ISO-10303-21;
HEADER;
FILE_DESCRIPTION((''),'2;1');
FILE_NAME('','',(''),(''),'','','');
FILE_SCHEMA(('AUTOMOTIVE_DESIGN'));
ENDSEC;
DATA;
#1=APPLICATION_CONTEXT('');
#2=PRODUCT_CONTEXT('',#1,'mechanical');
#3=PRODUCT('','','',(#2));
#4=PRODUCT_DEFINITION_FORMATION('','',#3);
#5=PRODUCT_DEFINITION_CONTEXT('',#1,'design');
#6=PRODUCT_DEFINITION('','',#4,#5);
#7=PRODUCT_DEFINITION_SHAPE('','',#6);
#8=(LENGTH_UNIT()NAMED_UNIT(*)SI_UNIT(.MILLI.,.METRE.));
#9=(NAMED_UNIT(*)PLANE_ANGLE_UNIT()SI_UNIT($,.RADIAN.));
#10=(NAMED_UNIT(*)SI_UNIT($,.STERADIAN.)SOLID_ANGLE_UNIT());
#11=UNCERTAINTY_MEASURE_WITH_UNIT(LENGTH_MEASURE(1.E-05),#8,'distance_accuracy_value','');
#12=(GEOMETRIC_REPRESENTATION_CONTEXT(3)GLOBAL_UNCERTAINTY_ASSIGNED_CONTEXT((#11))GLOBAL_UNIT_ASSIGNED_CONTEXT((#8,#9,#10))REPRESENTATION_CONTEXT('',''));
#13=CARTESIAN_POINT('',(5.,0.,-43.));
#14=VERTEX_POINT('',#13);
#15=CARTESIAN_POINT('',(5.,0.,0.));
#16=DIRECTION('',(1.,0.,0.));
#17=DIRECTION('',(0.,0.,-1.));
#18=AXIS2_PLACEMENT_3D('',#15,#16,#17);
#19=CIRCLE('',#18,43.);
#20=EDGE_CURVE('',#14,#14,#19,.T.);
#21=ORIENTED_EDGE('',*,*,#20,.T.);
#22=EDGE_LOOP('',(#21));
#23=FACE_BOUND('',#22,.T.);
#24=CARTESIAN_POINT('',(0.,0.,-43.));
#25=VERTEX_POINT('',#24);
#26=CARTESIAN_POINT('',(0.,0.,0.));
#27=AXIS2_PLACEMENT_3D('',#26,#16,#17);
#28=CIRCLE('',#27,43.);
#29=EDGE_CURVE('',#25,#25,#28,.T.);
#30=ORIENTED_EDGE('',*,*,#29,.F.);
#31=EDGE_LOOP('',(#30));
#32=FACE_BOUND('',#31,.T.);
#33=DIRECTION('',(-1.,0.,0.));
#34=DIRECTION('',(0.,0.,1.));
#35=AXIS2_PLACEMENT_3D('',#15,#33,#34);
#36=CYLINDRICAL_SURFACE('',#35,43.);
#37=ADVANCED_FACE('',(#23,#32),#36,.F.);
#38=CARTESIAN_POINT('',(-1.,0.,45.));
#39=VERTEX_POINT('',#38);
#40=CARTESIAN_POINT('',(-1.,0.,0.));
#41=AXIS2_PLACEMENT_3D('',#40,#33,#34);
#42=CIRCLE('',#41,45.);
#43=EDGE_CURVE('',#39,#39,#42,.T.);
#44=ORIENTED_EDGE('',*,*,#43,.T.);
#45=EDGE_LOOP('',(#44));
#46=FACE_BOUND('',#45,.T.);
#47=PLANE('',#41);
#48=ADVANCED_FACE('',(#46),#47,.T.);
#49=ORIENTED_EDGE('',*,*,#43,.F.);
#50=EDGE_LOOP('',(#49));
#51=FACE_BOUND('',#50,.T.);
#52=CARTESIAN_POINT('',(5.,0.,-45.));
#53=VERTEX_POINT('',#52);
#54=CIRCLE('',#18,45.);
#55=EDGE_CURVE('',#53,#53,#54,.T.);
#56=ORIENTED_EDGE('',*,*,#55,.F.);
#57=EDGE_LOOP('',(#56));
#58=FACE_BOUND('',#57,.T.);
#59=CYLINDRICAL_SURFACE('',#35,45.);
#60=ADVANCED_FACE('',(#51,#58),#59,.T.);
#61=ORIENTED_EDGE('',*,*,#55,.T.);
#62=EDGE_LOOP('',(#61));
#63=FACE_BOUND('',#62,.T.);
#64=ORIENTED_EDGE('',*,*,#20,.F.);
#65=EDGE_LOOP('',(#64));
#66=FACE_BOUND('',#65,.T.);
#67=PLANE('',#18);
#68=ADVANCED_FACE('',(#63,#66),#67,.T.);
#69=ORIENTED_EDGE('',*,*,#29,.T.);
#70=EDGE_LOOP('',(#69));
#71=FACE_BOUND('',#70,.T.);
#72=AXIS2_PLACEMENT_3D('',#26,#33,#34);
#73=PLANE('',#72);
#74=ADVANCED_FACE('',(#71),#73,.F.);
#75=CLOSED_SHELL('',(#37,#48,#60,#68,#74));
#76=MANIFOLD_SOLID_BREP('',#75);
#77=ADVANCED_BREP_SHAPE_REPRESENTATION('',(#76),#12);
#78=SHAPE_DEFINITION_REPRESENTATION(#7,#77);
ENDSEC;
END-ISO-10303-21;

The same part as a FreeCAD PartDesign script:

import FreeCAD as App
import Part
import Sketcher

doc = App.newDocument("Part")
body = doc.addObject("PartDesign::Body", "Body")

# Sketch on YZ plane
sketch1 = doc.addObject("Sketcher::SketchObject", "Sketch")
body.addObject(sketch1)
sketch1.AttachmentSupport = (doc.YZ_Plane, [""])
sketch1.MapMode = "FlatFace"
sketch1.addGeometry(Part.Circle(App.Vector(0, 0, 0), App.Vector(0, 0, 1), 45), False)
sketch1.addGeometry(Part.Circle(App.Vector(0, 0, 0), App.Vector(0, 0, 1), 43), False)
sketch1.addConstraint(Sketcher.Constraint("Coincident", 0, 3, -1, 1))
sketch1.addConstraint(Sketcher.Constraint("Coincident", 1, 3, -1, 1))
sketch1.addConstraint(Sketcher.Constraint("Diameter", 0, 90.0))
sketch1.addConstraint(Sketcher.Constraint("Diameter", 1, 86.0))
pad1 = doc.addObject("PartDesign::Pad", "Pad")
body.addObject(pad1)
pad1.Profile = sketch1
pad1.Length = 5

# Sketch on YZ plane
sketch2 = doc.addObject("Sketcher::SketchObject", "Sketch001")
body.addObject(sketch2)
sketch2.AttachmentSupport = (doc.YZ_Plane, [""])
sketch2.MapMode = "FlatFace"
sketch2.AttachmentOffset = App.Placement(App.Vector(0, 0, -1), App.Rotation())
sketch2.addGeometry(Part.Circle(App.Vector(0, 0, 0), App.Vector(0, 0, 1), 45), False)
sketch2.addConstraint(Sketcher.Constraint("Coincident", 0, 3, -1, 1))
sketch2.addConstraint(Sketcher.Constraint("Diameter", 0, 90.0))
pad2 = doc.addObject("PartDesign::Pad", "Pad001")
body.addObject(pad2)
pad2.Profile = sketch2
pad2.Length = 1

doc.recompute()
